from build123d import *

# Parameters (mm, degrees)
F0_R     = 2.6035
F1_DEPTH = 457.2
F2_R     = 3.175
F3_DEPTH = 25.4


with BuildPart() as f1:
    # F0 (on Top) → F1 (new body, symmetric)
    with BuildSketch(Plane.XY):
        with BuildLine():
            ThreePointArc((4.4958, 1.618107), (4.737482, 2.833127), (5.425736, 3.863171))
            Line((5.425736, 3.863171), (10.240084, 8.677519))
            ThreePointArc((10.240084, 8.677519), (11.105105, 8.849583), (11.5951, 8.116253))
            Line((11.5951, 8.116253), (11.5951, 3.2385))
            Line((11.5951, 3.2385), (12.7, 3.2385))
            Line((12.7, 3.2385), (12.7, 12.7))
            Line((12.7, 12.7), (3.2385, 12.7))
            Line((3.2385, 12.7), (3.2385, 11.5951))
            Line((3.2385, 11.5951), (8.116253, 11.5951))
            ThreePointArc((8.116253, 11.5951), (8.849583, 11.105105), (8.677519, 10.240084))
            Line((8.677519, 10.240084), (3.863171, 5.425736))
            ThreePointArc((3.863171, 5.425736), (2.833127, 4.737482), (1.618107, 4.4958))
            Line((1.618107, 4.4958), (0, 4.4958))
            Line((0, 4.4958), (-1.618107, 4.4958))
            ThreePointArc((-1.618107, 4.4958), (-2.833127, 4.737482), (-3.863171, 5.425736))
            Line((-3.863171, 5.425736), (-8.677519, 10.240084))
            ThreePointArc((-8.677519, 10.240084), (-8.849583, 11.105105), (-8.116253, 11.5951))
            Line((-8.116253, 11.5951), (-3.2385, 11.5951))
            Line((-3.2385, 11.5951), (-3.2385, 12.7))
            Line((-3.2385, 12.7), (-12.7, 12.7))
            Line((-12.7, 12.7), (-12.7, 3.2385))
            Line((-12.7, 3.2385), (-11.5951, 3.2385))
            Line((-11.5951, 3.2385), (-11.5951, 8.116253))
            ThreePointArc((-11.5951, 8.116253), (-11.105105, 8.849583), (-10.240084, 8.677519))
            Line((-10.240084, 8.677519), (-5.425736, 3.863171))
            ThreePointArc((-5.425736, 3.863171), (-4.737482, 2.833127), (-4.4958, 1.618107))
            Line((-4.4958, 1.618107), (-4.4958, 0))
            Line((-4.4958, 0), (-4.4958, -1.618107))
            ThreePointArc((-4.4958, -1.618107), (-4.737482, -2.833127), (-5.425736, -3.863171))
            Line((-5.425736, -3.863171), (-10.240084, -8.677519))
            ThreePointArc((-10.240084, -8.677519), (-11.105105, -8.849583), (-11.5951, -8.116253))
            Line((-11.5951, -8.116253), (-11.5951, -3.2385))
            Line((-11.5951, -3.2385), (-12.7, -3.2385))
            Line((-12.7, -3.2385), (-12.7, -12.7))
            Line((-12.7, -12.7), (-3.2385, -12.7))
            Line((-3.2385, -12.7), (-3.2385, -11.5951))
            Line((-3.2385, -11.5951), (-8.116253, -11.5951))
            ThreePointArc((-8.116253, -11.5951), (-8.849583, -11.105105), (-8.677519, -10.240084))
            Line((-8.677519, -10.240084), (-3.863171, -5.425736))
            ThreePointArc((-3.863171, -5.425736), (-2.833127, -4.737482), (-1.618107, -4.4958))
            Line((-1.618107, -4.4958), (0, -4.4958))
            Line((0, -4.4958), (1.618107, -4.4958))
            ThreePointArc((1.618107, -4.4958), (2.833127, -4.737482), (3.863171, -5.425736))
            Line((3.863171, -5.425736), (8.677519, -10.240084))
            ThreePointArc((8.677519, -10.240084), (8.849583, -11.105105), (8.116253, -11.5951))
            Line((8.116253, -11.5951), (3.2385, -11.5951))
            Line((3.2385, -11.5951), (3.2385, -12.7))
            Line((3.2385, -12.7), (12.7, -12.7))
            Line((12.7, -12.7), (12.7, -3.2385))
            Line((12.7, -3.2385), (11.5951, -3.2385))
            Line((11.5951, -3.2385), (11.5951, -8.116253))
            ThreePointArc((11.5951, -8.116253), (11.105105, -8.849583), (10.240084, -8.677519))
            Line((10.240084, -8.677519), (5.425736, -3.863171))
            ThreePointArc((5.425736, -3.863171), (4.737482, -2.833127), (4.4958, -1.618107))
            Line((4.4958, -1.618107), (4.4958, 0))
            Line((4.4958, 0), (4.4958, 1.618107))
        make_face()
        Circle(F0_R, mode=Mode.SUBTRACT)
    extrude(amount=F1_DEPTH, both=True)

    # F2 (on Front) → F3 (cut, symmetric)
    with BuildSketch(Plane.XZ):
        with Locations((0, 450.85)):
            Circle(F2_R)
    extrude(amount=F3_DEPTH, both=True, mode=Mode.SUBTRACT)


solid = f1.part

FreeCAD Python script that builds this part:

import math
import FreeCAD as App
import Part
import Sketcher
Q = App.Units.Quantity

doc = App.newDocument("Part")
params = doc.addObject("Spreadsheet::Sheet", "Params")
for row, (alias, value) in enumerate([
    ("sketch1_diameter", "0.205 in"),
    ("sketch1_radius", "0.03125 in"),
    ("pad1_length", "36 in"),
    ("sketch2_diameter", "0.25 in"),
    ("pocket1_length", "2 in"),
], start=1):
    params.set(f"A{row}", alias)
    params.set(f"B{row}", "=" + value)
    params.setAlias(f"B{row}", alias)

body = doc.addObject("PartDesign::Body", "Body")

# Sketch on XY plane
sketch1 = body.newObject("Sketcher::SketchObject", "Sketch")
sketch1.AttachmentSupport = (doc.getObject("XY_Plane"), [""])
sketch1.MapMode = "FlatFace"
sketch1.addGeometry([
    Part.ArcOfCircle(Part.Circle(App.Vector(7.7, 1.6, 0), App.Vector(0, 0, 1), 3.2), math.radians(135), math.radians(180)),  # 0
    Part.LineSegment(App.Vector(5.4, 3.9, 0), App.Vector(10.2, 8.7, 0)),  # 1
    Part.ArcOfCircle(Part.Circle(App.Vector(10.8, 8.1, 0), App.Vector(0, 0, 1), 0.8), math.radians(0), math.radians(135)),  # 2
    Part.LineSegment(App.Vector(11.6, 8.1, 0), App.Vector(11.6, 3.2, 0)),  # 3
    Part.LineSegment(App.Vector(11.6, 3.2, 0), App.Vector(12.7, 3.2, 0)),  # 4
    Part.LineSegment(App.Vector(12.7, 3.2, 0), App.Vector(12.7, 12.7, 0)),  # 5
    Part.LineSegment(App.Vector(12.7, 12.7, 0), App.Vector(3.2, 12.7, 0)),  # 6
    Part.LineSegment(App.Vector(3.2, 12.7, 0), App.Vector(3.2, 11.6, 0)),  # 7
    Part.LineSegment(App.Vector(3.2, 11.6, 0), App.Vector(8.1, 11.6, 0)),  # 8
    Part.ArcOfCircle(Part.Circle(App.Vector(8.1, 10.8, 0), App.Vector(0, 0, 1), 0.8), math.radians(-45), math.radians(90)),  # 9
    Part.LineSegment(App.Vector(8.7, 10.2, 0), App.Vector(3.9, 5.4, 0)),  # 10
    Part.ArcOfCircle(Part.Circle(App.Vector(1.6, 7.7, 0), App.Vector(0, 0, 1), 3.2), math.radians(-90), math.radians(-45)),  # 11
    Part.LineSegment(App.Vector(1.6, 4.5, 0), App.Vector(-1.6, 4.5, 0)),  # 12
    Part.ArcOfCircle(Part.Circle(App.Vector(-1.6, 7.7, 0), App.Vector(0, 0, 1), 3.2), math.radians(-135), math.radians(-90)),  # 13
    Part.LineSegment(App.Vector(-3.9, 5.4, 0), App.Vector(-8.7, 10.2, 0)),  # 14
    Part.ArcOfCircle(Part.Circle(App.Vector(-8.1, 10.8, 0), App.Vector(0, 0, 1), 0.8), math.radians(90), math.radians(225)),  # 15
    Part.LineSegment(App.Vector(-8.1, 11.6, 0), App.Vector(-3.2, 11.6, 0)),  # 16
    Part.LineSegment(App.Vector(-3.2, 11.6, 0), App.Vector(-3.2, 12.7, 0)),  # 17
    Part.LineSegment(App.Vector(-3.2, 12.7, 0), App.Vector(-12.7, 12.7, 0)),  # 18
    Part.LineSegment(App.Vector(-12.7, 12.7, 0), App.Vector(-12.7, 3.2, 0)),  # 19
    Part.LineSegment(App.Vector(-12.7, 3.2, 0), App.Vector(-11.6, 3.2, 0)),  # 20
    Part.LineSegment(App.Vector(-11.6, 3.2, 0), App.Vector(-11.6, 8.1, 0)),  # 21
    Part.ArcOfCircle(Part.Circle(App.Vector(-10.8, 8.1, 0), App.Vector(0, 0, 1), 0.8), math.radians(45), math.radians(180)),  # 22
    Part.LineSegment(App.Vector(-10.2, 8.7, 0), App.Vector(-5.4, 3.9, 0)),  # 23
    Part.ArcOfCircle(Part.Circle(App.Vector(-7.7, 1.6, 0), App.Vector(0, 0, 1), 3.2), math.radians(0), math.radians(45)),  # 24
    Part.LineSegment(App.Vector(-4.5, 1.6, 0), App.Vector(-4.5, -1.6, 0)),  # 25
    Part.ArcOfCircle(Part.Circle(App.Vector(-7.7, -1.6, 0), App.Vector(0, 0, 1), 3.2), math.radians(-45), math.radians(0)),  # 26
    Part.LineSegment(App.Vector(-5.4, -3.9, 0), App.Vector(-10.2, -8.7, 0)),  # 27
    Part.ArcOfCircle(Part.Circle(App.Vector(-10.8, -8.1, 0), App.Vector(0, 0, 1), 0.8), math.radians(180), math.radians(315)),  # 28
    Part.LineSegment(App.Vector(-11.6, -8.1, 0), App.Vector(-11.6, -3.2, 0)),  # 29
    Part.LineSegment(App.Vector(-11.6, -3.2, 0), App.Vector(-12.7, -3.2, 0)),  # 30
    Part.LineSegment(App.Vector(-12.7, -3.2, 0), App.Vector(-12.7, -12.7, 0)),  # 31
    Part.LineSegment(App.Vector(-12.7, -12.7, 0), App.Vector(-3.2, -12.7, 0)),  # 32
    Part.LineSegment(App.Vector(-3.2, -12.7, 0), App.Vector(-3.2, -11.6, 0)),  # 33
    Part.LineSegment(App.Vector(-3.2, -11.6, 0), App.Vector(-8.1, -11.6, 0)),  # 34
    Part.ArcOfCircle(Part.Circle(App.Vector(-8.1, -10.8, 0), App.Vector(0, 0, 1), 0.8), math.radians(135), math.radians(270)),  # 35
    Part.LineSegment(App.Vector(-8.7, -10.2, 0), App.Vector(-3.9, -5.4, 0)),  # 36
    Part.ArcOfCircle(Part.Circle(App.Vector(-1.6, -7.7, 0), App.Vector(0, 0, 1), 3.2), math.radians(90), math.radians(135)),  # 37
    Part.LineSegment(App.Vector(-1.6, -4.5, 0), App.Vector(1.6, -4.5, 0)),  # 38
    Part.ArcOfCircle(Part.Circle(App.Vector(1.6, -7.7, 0), App.Vector(0, 0, 1), 3.2), math.radians(45), math.radians(90)),  # 39
    Part.LineSegment(App.Vector(3.9, -5.4, 0), App.Vector(8.7, -10.2, 0)),  # 40
    Part.ArcOfCircle(Part.Circle(App.Vector(8.1, -10.8, 0), App.Vector(0, 0, 1), 0.8), math.radians(-90), math.radians(45)),  # 41
    Part.LineSegment(App.Vector(8.1, -11.6, 0), App.Vector(3.2, -11.6, 0)),  # 42
    Part.LineSegment(App.Vector(3.2, -11.6, 0), App.Vector(3.2, -12.7, 0)),  # 43
    Part.LineSegment(App.Vector(3.2, -12.7, 0), App.Vector(12.7, -12.7, 0)),  # 44
    Part.LineSegment(App.Vector(12.7, -12.7, 0), App.Vector(12.7, -3.2, 0)),  # 45
    Part.LineSegment(App.Vector(12.7, -3.2, 0), App.Vector(11.6, -3.2, 0)),  # 46
    Part.LineSegment(App.Vector(11.6, -3.2, 0), App.Vector(11.6, -8.1, 0)),  # 47
    Part.ArcOfCircle(Part.Circle(App.Vector(10.8, -8.1, 0), App.Vector(0, 0, 1), 0.8), math.radians(-135), math.radians(0)),  # 48
    Part.LineSegment(App.Vector(10.2, -8.7, 0), App.Vector(5.4, -3.9, 0)),  # 49
    Part.ArcOfCircle(Part.Circle(App.Vector(7.7, -1.6, 0), App.Vector(0, 0, 1), 3.2), math.radians(180), math.radians(225)),  # 50
    Part.LineSegment(App.Vector(4.5, -1.6, 0), App.Vector(4.5, 1.6, 0)),  # 51
    Part.Circle(App.Vector(0, 0, 0), App.Vector(0, 0, 1), 2.6),  # 52
], False)
sketch1.addConstraint([
    Sketcher.Constraint("Tangent", 0, 1, 1, 1),
    Sketcher.Constraint("Tangent", 1, 2, 2, 2),
    Sketcher.Constraint("Tangent", 2, 1, 3, 1),
    Sketcher.Constraint("Coincident", 3, 2, 4, 1),
    Sketcher.Constraint("Coincident", 4, 2, 5, 1),
    Sketcher.Constraint("Coincident", 5, 2, 6, 1),
    Sketcher.Constraint("Coincident", 6, 2, 7, 1),
    Sketcher.Constraint("Coincident", 7, 2, 8, 1),
    Sketcher.Constraint("Tangent", 8, 2, 9, 2),
    Sketcher.Constraint("Tangent", 9, 1, 10, 1),
    Sketcher.Constraint("Tangent", 10, 2, 11, 2),
    Sketcher.Constraint("Tangent", 11, 1, 12, 1),
    Sketcher.Constraint("Tangent", 12, 2, 13, 2),
    Sketcher.Constraint("Tangent", 13, 1, 14, 1),
    Sketcher.Constraint("Tangent", 14, 2, 15, 2),
    Sketcher.Constraint("Tangent", 15, 1, 16, 1),
    Sketcher.Constraint("Coincident", 16, 2, 17, 1),
    Sketcher.Constraint("Coincident", 17, 2, 18, 1),
    Sketcher.Constraint("Coincident", 18, 2, 19, 1),
    Sketcher.Constraint("Coincident", 19, 2, 20, 1),
    Sketcher.Constraint("Coincident", 20, 2, 21, 1),
    Sketcher.Constraint("Tangent", 21, 2, 22, 2),
    Sketcher.Constraint("Tangent", 22, 1, 23, 1),
    Sketcher.Constraint("Tangent", 23, 2, 24, 2),
    Sketcher.Constraint("Tangent", 24, 1, 25, 1),
    Sketcher.Constraint("Tangent", 25, 2, 26, 2),
    Sketcher.Constraint("Tangent", 26, 1, 27, 1),
    Sketcher.Constraint("Tangent", 27, 2, 28, 2),
    Sketcher.Constraint("Tangent", 28, 1, 29, 1),
    Sketcher.Constraint("Coincident", 29, 2, 30, 1),
    Sketcher.Constraint("Coincident", 30, 2, 31, 1),
    Sketcher.Constraint("Coincident", 31, 2, 32, 1),
    Sketcher.Constraint("Coincident", 32, 2, 33, 1),
    Sketcher.Constraint("Coincident", 33, 2, 34, 1),
    Sketcher.Constraint("Tangent", 34, 2, 35, 2),
    Sketcher.Constraint("Tangent", 35, 1, 36, 1),
    Sketcher.Constraint("Tangent", 36, 2, 37, 2),
    Sketcher.Constraint("Tangent", 37, 1, 38, 1),
    Sketcher.Constraint("Tangent", 38, 2, 39, 2),
    Sketcher.Constraint("Tangent", 39, 1, 40, 1),
    Sketcher.Constraint("Tangent", 40, 2, 41, 2),
    Sketcher.Constraint("Tangent", 41, 1, 42, 1),
    Sketcher.Constraint("Coincident", 42, 2, 43, 1),
    Sketcher.Constraint("Coincident", 43, 2, 44, 1),
    Sketcher.Constraint("Coincident", 44, 2, 45, 1),
    Sketcher.Constraint("Coincident", 45, 2, 46, 1),
    Sketcher.Constraint("Coincident", 46, 2, 47, 1),
    Sketcher.Constraint("Tangent", 47, 2, 48, 2),
    Sketcher.Constraint("Tangent", 48, 1, 49, 1),
    Sketcher.Constraint("Tangent", 49, 2, 50, 2),
    Sketcher.Constraint("Tangent", 50, 1, 51, 1),
    Sketcher.Constraint("Tangent", 51, 2, 0, 2),
    Sketcher.Constraint("Vertical", 3),
    Sketcher.Constraint("Horizontal", 4),
    Sketcher.Constraint("Vertical", 5),
    Sketcher.Constraint("Horizontal", 6),
    Sketcher.Constraint("Vertical", 7),
    Sketcher.Constraint("Horizontal", 8),
    Sketcher.Constraint("Horizontal", 12),
    Sketcher.Constraint("Horizontal", 16),
    Sketcher.Constraint("Vertical", 17),
    Sketcher.Constraint("Horizontal", 18),
    Sketcher.Constraint("Vertical", 19),
    Sketcher.Constraint("Horizontal", 20),
    Sketcher.Constraint("Vertical", 21),
    Sketcher.Constraint("Vertical", 25),
    Sketcher.Constraint("Vertical", 29),
    Sketcher.Constraint("Horizontal", 30),
    Sketcher.Constraint("Vertical", 31),
    Sketcher.Constraint("Horizontal", 32),
    Sketcher.Constraint("Vertical", 33),
    Sketcher.Constraint("Horizontal", 34),
    Sketcher.Constraint("Horizontal", 38),
    Sketcher.Constraint("Horizontal", 42),
    Sketcher.Constraint("Vertical", 43),
    Sketcher.Constraint("Horizontal", 44),
    Sketcher.Constraint("Vertical", 45),
    Sketcher.Constraint("Horizontal", 46),
    Sketcher.Constraint("Vertical", 47),
    Sketcher.Constraint("Vertical", 51),
    Sketcher.Constraint("Coincident", 52, 3, -1, 1),
    Sketcher.Constraint("Equal", 2, 9),
    Sketcher.Constraint("Equal", 0, 11),
    Sketcher.Constraint("Equal", 11, 13),
    Sketcher.Constraint("Equal", 9, 15),
    Sketcher.Constraint("Equal", 15, 22),
    Sketcher.Constraint("Equal", 13, 24),
    Sketcher.Constraint("Equal", 24, 26),
    Sketcher.Constraint("Equal", 22, 28),
    Sketcher.Constraint("Equal", 28, 35),
    Sketcher.Constraint("Equal", 26, 37),
    Sketcher.Constraint("Equal", 37, 39),
    Sketcher.Constraint("Equal", 35, 41),
    Sketcher.Constraint("Equal", 41, 48),
    Sketcher.Constraint("Equal", 39, 50),
    Sketcher.Constraint("Symmetric", 0, 3, 26, 3, -1, 1),
    Sketcher.Constraint("Symmetric", 2, 3, 28, 3, -1, 1),
    Sketcher.Constraint("Symmetric", 9, 3, 35, 3, -1, 1),
    Sketcher.Constraint("Symmetric", 11, 3, 37, 3, -1, 1),
    Sketcher.Constraint("Symmetric", 15, 3, 41, 3, -1, 1),
    Sketcher.Constraint("Symmetric", 22, 3, 48, 3, -1, 1),
    Sketcher.Constraint("Symmetric", 4, 2, 30, 2, -1, 1),
    Sketcher.Constraint("Symmetric", 6, 2, 32, 2, -1, 1),
    Sketcher.Constraint("Symmetric", 17, 2, 43, 2, -1, 1),
    Sketcher.Constraint("Symmetric", 19, 2, 45, 2, -1, 1),
    Sketcher.Constraint("Symmetric", 9, 3, 15, 3, -2),
    Sketcher.Constraint("Symmetric", 2, 3, 22, 3, -2),
    Sketcher.Constraint("Symmetric", 6, 2, 17, 2, -2),
    Sketcher.Constraint("Symmetric", 4, 2, 19, 2, -2),
    Sketcher.Constraint("Parallel", 1, 10),
    Sketcher.Constraint("Perpendicular", 10, 14),
    Sketcher.Constraint("Parallel", 14, 23),
    Sketcher.Constraint("Perpendicular", 36, 40),
    Sketcher.Constraint("Parallel", 40, 49),
    Sketcher.Constraint("Horizontal", 0, 3, 24, 3),
    Sketcher.Constraint("Equal", 42, 3),
    Sketcher.Constraint("Equal", 44, 5),
    Sketcher.Constraint("Equal", 46, 7),
    Sketcher.Constraint("Equal", 38, 25),
    Sketcher.Constraint("Equal", 1, 10),
    Sketcher.Constraint("Diameter", 52, Q("0.205 in")),
    Sketcher.Constraint("Radius", 2, Q("0.03125 in")),
    Sketcher.Constraint("DistanceX", -1, 1, 4, 2, Q("0.5 in")),
    Sketcher.Constraint("DistanceX", 4, 1, 4, 2, Q("0.0435 in")),
    Sketcher.Constraint("DistanceX", 6, 2, 6, 1, Q("0.3725 in")),
    Sketcher.Constraint("DistanceY", -1, 1, 11, 1, Q("0.177 in")),
    Sketcher.Constraint("Radius", 0, 3.174994),
    Sketcher.Constraint("DistanceX", 8, 1, 8, 2, 4.877753),
])
sketch1.setExpression("Constraints[120]", "Params.sketch1_diameter")
sketch1.setExpression("Constraints[121]", "Params.sketch1_radius")
pad1 = body.newObject("PartDesign::Pad", "Pad")
pad1.Profile = sketch1
pad1.setExpression("Length", "Params.pad1_length")
pad1.Midplane = True

# Sketch on XZ plane
sketch2 = body.newObject("Sketcher::SketchObject", "Sketch001")
sketch2.AttachmentSupport = (doc.getObject("XZ_Plane"), [""])
sketch2.MapMode = "FlatFace"
sketch2.addGeometry(Part.Circle(App.Vector(0, 450.9, 0), App.Vector(0, 0, 1), 3.2), False)
sketch2.addConstraint([
    Sketcher.Constraint("PointOnObject", 0, 3, -2),
    Sketcher.Constraint("Diameter", 0, Q("0.25 in")),
    Sketcher.Constraint("DistanceY", -1, 1, 0, 3, Q("17.75 in")),
])
sketch2.setExpression("Constraints[1]", "Params.sketch2_diameter")
pocket1 = body.newObject("PartDesign::Pocket", "Pocket")
pocket1.Profile = sketch2
pocket1.setExpression("Length", "Params.pocket1_length")
pocket1.Midplane = True

doc.recompute()
